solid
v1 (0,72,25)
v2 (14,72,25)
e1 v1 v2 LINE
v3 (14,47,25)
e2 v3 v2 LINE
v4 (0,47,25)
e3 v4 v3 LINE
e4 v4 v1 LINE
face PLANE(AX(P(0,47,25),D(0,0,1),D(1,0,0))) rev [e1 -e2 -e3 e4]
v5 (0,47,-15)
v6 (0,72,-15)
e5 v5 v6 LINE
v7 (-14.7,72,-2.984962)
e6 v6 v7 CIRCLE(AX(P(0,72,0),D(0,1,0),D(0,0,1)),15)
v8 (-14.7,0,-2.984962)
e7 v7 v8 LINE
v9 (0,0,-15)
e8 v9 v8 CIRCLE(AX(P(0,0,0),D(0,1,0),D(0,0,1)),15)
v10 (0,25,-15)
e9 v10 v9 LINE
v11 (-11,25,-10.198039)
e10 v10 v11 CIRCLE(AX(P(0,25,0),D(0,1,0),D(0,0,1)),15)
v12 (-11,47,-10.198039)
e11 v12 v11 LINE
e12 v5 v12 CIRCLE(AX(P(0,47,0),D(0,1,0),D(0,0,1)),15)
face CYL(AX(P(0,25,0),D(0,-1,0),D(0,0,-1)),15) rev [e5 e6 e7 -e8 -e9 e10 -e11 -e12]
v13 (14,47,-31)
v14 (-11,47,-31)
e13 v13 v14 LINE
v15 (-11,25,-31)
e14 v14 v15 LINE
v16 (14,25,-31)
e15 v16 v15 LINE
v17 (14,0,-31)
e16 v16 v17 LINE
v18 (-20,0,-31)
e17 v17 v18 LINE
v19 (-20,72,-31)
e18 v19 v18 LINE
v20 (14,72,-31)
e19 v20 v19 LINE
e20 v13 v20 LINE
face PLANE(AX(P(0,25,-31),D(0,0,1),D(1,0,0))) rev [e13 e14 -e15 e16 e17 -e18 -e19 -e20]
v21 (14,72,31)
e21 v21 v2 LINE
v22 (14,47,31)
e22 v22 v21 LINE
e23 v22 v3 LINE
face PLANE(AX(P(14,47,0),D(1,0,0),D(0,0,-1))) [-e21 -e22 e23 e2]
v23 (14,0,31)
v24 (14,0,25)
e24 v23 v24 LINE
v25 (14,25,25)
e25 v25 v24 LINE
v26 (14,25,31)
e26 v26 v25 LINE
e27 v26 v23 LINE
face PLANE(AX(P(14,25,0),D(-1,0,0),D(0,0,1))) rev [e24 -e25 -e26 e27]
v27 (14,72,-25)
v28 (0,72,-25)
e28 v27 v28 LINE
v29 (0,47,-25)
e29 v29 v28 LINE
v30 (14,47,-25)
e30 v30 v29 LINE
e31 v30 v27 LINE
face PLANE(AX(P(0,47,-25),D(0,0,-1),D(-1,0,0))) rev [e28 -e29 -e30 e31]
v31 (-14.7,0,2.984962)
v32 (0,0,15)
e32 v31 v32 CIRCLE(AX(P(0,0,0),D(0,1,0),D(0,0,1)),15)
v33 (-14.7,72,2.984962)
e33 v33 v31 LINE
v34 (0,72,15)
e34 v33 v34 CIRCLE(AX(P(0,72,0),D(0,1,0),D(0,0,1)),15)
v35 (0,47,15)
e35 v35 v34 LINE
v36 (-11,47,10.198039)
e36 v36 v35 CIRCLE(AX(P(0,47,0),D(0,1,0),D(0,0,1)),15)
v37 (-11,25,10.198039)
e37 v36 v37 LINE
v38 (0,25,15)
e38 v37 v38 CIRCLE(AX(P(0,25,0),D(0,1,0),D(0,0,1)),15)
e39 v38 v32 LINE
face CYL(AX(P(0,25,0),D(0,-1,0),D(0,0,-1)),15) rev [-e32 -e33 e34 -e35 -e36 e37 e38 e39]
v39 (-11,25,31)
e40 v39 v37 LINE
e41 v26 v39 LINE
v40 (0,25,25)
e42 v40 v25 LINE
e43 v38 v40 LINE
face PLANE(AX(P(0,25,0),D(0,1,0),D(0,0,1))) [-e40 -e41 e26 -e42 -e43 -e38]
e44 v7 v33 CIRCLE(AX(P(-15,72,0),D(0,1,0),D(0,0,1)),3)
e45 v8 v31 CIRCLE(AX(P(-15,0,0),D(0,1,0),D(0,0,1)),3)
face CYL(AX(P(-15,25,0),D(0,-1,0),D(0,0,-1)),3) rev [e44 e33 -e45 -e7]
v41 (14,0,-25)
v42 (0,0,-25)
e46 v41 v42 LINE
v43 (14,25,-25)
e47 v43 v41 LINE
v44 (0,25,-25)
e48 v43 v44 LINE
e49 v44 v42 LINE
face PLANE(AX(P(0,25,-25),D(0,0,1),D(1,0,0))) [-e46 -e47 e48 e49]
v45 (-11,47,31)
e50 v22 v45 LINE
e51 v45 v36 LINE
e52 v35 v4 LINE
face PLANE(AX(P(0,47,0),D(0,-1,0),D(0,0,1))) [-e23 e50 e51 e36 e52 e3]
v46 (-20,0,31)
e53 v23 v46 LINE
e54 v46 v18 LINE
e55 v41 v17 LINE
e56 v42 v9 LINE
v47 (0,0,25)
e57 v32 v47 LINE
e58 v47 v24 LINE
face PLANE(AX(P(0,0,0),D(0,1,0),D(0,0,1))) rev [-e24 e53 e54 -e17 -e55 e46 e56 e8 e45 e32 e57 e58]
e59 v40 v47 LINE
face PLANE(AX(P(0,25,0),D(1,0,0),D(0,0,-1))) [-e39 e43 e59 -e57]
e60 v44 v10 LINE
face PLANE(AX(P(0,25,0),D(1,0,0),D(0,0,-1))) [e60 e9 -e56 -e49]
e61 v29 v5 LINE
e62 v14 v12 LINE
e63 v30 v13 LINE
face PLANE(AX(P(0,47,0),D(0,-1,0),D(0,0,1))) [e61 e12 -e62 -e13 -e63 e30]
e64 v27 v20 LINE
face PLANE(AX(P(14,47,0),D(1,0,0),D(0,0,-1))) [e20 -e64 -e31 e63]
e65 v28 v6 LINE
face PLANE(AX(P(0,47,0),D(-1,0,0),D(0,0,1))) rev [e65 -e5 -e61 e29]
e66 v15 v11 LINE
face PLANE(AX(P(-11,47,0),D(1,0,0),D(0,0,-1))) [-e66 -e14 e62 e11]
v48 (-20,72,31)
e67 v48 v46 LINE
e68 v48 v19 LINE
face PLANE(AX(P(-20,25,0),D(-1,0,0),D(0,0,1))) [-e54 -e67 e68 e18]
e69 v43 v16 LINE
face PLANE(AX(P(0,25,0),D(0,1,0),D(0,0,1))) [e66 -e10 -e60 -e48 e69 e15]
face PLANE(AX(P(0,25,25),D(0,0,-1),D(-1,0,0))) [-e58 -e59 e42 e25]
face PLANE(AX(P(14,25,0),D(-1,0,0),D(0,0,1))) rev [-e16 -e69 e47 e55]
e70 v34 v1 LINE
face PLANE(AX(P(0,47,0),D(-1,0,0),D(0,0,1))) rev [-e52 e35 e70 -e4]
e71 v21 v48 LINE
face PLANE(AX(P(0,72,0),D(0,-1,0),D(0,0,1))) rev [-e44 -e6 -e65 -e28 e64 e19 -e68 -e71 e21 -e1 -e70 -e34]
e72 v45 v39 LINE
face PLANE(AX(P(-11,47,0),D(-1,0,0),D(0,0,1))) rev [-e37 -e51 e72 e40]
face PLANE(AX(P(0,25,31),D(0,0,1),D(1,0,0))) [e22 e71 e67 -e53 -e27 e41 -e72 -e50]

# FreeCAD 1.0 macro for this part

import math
import FreeCAD as App
import Part
import Sketcher
Q = App.Units.Quantity

doc = App.newDocument("Part")
body = doc.addObject("PartDesign::Body", "Body")

# Sketch on XZ plane
sketch1 = doc.addObject("Sketcher::SketchObject", "Sketch")
body.addObject(sketch1)
sketch1.AttachmentSupport = (doc.XZ_Plane, [""])
sketch1.MapMode = "FlatFace"
sketch1.addGeometry([
    Part.LineSegment(App.Vector(0, -25, 0), App.Vector(14, -25, 0)),  # 0
    Part.LineSegment(App.Vector(14, -25, 0), App.Vector(14, -31, 0)),  # 1
    Part.LineSegment(App.Vector(14, -31, 0), App.Vector(-20, -31, 0)),  # 2
    Part.LineSegment(App.Vector(-20, -31, 0), App.Vector(-20, 31, 0)),  # 3
    Part.LineSegment(App.Vector(-20, 31, 0), App.Vector(14, 31, 0)),  # 4
    Part.LineSegment(App.Vector(14, 31, 0), App.Vector(14, 25, 0)),  # 5
    Part.LineSegment(App.Vector(14, 25, 0), App.Vector(0, 25, 0)),  # 6
    Part.LineSegment(App.Vector(0, 25, 0), App.Vector(0, 15, 0)),  # 7
    Part.ArcOfCircle(Part.Circle(App.Vector(0, 0, 0), App.Vector(0, 0, 1), 15), math.radians(90), math.radians(169)),  # 8
    Part.ArcOfCircle(Part.Circle(App.Vector(-15, 0, 0), App.Vector(0, 0, 1), 3), math.radians(84), math.radians(276)),  # 9
    Part.ArcOfCircle(Part.Circle(App.Vector(0, 0, 0), App.Vector(0, 0, 1), 15), math.radians(-169), math.radians(-90)),  # 10
    Part.LineSegment(App.Vector(0, -15, 0), App.Vector(0, -25, 0)),  # 11
], False)
sketch1.addConstraint([
    Sketcher.Constraint("Coincident", 0, 2, 1, 1),
    Sketcher.Constraint("Coincident", 1, 2, 2, 1),
    Sketcher.Constraint("Coincident", 2, 2, 3, 1),
    Sketcher.Constraint("Coincident", 3, 2, 4, 1),
    Sketcher.Constraint("Coincident", 4, 2, 5, 1),
    Sketcher.Constraint("Coincident", 5, 2, 6, 1),
    Sketcher.Constraint("Coincident", 6, 2, 7, 1),
    Sketcher.Constraint("Coincident", 7, 2, 8, 1),
    Sketcher.Constraint("Coincident", 8, 2, 9, 1),
    Sketcher.Constraint("Coincident", 9, 2, 10, 1),
    Sketcher.Constraint("Coincident", 10, 2, 11, 1),
    Sketcher.Constraint("Coincident", 11, 2, 0, 1),
    Sketcher.Constraint("Horizontal", 0),
    Sketcher.Constraint("Vertical", 1),
    Sketcher.Constraint("Horizontal", 2),
    Sketcher.Constraint("Vertical", 3),
    Sketcher.Constraint("Horizontal", 4),
    Sketcher.Constraint("Vertical", 5),
    Sketcher.Constraint("Horizontal", 6),
    Sketcher.Constraint("Vertical", 7),
    Sketcher.Constraint("Vertical", 11),
    Sketcher.Constraint("Coincident", 8, 3, -1, 1),
    Sketcher.Constraint("Coincident", 10, 3, -1, 1),
    Sketcher.Constraint("Equal", 8, 10),
    Sketcher.Constraint("Symmetric", 6, 2, 11, 2, -1, 1),
    Sketcher.Constraint("Symmetric", 1, 2, 4, 2, -1),
    Sketcher.Constraint("PointOnObject", 9, 3, -1),
    Sketcher.Constraint("PointOnObject", 6, 2, -2),
    Sketcher.Constraint("Radius", 8, Q("15 mm")),
    Sketcher.Constraint("Radius", 9, Q("3 mm")),
    Sketcher.Constraint("DistanceX", 0, 1, 0, 2, Q("14 mm")),
    Sketcher.Constraint("DistanceX", 2, 2, 2, 1, Q("34 mm")),
    Sketcher.Constraint("DistanceY", 1, 2, 1, 1, Q("6 mm")),
    Sketcher.Constraint("DistanceY", 3, 1, 3, 2, Q("62 mm")),
    Sketcher.Constraint("DistanceX", 9, 3, -1, 1, Q("15 mm")),
])
pad1 = doc.addObject("PartDesign::Pad", "Pad")
body.addObject(pad1)
pad1.Profile = sketch1
pad1.Length = 25
pad1.Reversed = True

# Sketch on XZ plane
sketch2 = doc.addObject("Sketcher::SketchObject", "Sketch001")
body.addObject(sketch2)
sketch2.AttachmentSupport = (doc.XZ_Plane, [""])
sketch2.MapMode = "FlatFace"
sketch2.AttachmentOffset = App.Placement(App.Vector(0, 0, -25), App.Rotation())
sketch2.addGeometry([
    Part.LineSegment(App.Vector(-20, -31, 0), App.Vector(-20, 31, 0)),  # 0
    Part.LineSegment(App.Vector(-20, 31, 0), App.Vector(-11, 31, 0)),  # 1
    Part.LineSegment(App.Vector(-11, 31, 0), App.Vector(-11, 10.2, 0)),  # 2
    Part.ArcOfCircle(Part.Circle(App.Vector(0, 0, 0), App.Vector(0, 0, 1), 15), math.radians(137), math.radians(169)),  # 3
    Part.ArcOfCircle(Part.Circle(App.Vector(-15, 0, 0), App.Vector(0, 0, 1), 3), math.radians(84), math.radians(276)),  # 4
    Part.ArcOfCircle(Part.Circle(App.Vector(0, 0, 0), App.Vector(0, 0, 1), 15), math.radians(-169), math.radians(-137)),  # 5
    Part.LineSegment(App.Vector(-11, -10.2, 0), App.Vector(-11, -31, 0)),  # 6
    Part.LineSegment(App.Vector(-11, -31, 0), App.Vector(-20, -31, 0)),  # 7
], False)
sketch2.addConstraint([
    Sketcher.Constraint("Coincident", 0, 2, 1, 1),
    Sketcher.Constraint("Coincident", 1, 2, 2, 1),
    Sketcher.Constraint("Coincident", 2, 2, 3, 1),
    Sketcher.Constraint("Coincident", 3, 2, 4, 1),
    Sketcher.Constraint("Coincident", 4, 2, 5, 1),
    Sketcher.Constraint("Coincident", 5, 2, 6, 1),
    Sketcher.Constraint("Coincident", 6, 2, 7, 1),
    Sketcher.Constraint("Coincident", 7, 2, 0, 1),
    Sketcher.Constraint("Vertical", 0),
    Sketcher.Constraint("Horizontal", 1),
    Sketcher.Constraint("Vertical", 2),
    Sketcher.Constraint("Vertical", 6),
    Sketcher.Constraint("Horizontal", 7),
    Sketcher.Constraint("Coincident", 3, 3, -1, 1),
    Sketcher.Constraint("Coincident", 5, 3, -1, 1),
    Sketcher.Constraint("Equal", 3, 5),
    Sketcher.Constraint("Symmetric", 1, 2, 6, 2, -1),
    Sketcher.Constraint("PointOnObject", 4, 3, -1),
    Sketcher.Constraint("Radius", 3, Q("15 mm")),
    Sketcher.Constraint("Radius", 4, Q("3 mm")),
    Sketcher.Constraint("DistanceX", 1, 1, 1, 2, Q("9 mm")),
    Sketcher.Constraint("DistanceY", 0, 1, 0, 2, Q("62 mm")),
    Sketcher.Constraint("DistanceX", 4, 3, -1, 1, Q("15 mm")),
    Sketcher.Constraint("DistanceX", 0, 2, -1, 1, Q("20 mm")),
])
pad2 = doc.addObject("PartDesign::Pad", "Pad001")
body.addObject(pad2)
pad2.Profile = sketch2
pad2.Length = 22
pad2.Reversed = True
doc.recompute()

datumplane = doc.addObject("PartDesign::Plane", "DatumPlane")
body.addObject(datumplane)
datumplane.AttachmentSupport = (doc.XZ_Plane, [""])
datumplane.MapMode = "FlatFace"
datumplane.AttachmentOffset = App.Placement(App.Vector(0, 0, -36), App.Rotation())
mirrored = doc.addObject("PartDesign::Mirrored", "Mirrored")
body.addObject(mirrored)
mirrored.Originals = [pad1]
mirrored.MirrorPlane = (datumplane, [""])
body.Tip = mirrored

doc.recompute()
